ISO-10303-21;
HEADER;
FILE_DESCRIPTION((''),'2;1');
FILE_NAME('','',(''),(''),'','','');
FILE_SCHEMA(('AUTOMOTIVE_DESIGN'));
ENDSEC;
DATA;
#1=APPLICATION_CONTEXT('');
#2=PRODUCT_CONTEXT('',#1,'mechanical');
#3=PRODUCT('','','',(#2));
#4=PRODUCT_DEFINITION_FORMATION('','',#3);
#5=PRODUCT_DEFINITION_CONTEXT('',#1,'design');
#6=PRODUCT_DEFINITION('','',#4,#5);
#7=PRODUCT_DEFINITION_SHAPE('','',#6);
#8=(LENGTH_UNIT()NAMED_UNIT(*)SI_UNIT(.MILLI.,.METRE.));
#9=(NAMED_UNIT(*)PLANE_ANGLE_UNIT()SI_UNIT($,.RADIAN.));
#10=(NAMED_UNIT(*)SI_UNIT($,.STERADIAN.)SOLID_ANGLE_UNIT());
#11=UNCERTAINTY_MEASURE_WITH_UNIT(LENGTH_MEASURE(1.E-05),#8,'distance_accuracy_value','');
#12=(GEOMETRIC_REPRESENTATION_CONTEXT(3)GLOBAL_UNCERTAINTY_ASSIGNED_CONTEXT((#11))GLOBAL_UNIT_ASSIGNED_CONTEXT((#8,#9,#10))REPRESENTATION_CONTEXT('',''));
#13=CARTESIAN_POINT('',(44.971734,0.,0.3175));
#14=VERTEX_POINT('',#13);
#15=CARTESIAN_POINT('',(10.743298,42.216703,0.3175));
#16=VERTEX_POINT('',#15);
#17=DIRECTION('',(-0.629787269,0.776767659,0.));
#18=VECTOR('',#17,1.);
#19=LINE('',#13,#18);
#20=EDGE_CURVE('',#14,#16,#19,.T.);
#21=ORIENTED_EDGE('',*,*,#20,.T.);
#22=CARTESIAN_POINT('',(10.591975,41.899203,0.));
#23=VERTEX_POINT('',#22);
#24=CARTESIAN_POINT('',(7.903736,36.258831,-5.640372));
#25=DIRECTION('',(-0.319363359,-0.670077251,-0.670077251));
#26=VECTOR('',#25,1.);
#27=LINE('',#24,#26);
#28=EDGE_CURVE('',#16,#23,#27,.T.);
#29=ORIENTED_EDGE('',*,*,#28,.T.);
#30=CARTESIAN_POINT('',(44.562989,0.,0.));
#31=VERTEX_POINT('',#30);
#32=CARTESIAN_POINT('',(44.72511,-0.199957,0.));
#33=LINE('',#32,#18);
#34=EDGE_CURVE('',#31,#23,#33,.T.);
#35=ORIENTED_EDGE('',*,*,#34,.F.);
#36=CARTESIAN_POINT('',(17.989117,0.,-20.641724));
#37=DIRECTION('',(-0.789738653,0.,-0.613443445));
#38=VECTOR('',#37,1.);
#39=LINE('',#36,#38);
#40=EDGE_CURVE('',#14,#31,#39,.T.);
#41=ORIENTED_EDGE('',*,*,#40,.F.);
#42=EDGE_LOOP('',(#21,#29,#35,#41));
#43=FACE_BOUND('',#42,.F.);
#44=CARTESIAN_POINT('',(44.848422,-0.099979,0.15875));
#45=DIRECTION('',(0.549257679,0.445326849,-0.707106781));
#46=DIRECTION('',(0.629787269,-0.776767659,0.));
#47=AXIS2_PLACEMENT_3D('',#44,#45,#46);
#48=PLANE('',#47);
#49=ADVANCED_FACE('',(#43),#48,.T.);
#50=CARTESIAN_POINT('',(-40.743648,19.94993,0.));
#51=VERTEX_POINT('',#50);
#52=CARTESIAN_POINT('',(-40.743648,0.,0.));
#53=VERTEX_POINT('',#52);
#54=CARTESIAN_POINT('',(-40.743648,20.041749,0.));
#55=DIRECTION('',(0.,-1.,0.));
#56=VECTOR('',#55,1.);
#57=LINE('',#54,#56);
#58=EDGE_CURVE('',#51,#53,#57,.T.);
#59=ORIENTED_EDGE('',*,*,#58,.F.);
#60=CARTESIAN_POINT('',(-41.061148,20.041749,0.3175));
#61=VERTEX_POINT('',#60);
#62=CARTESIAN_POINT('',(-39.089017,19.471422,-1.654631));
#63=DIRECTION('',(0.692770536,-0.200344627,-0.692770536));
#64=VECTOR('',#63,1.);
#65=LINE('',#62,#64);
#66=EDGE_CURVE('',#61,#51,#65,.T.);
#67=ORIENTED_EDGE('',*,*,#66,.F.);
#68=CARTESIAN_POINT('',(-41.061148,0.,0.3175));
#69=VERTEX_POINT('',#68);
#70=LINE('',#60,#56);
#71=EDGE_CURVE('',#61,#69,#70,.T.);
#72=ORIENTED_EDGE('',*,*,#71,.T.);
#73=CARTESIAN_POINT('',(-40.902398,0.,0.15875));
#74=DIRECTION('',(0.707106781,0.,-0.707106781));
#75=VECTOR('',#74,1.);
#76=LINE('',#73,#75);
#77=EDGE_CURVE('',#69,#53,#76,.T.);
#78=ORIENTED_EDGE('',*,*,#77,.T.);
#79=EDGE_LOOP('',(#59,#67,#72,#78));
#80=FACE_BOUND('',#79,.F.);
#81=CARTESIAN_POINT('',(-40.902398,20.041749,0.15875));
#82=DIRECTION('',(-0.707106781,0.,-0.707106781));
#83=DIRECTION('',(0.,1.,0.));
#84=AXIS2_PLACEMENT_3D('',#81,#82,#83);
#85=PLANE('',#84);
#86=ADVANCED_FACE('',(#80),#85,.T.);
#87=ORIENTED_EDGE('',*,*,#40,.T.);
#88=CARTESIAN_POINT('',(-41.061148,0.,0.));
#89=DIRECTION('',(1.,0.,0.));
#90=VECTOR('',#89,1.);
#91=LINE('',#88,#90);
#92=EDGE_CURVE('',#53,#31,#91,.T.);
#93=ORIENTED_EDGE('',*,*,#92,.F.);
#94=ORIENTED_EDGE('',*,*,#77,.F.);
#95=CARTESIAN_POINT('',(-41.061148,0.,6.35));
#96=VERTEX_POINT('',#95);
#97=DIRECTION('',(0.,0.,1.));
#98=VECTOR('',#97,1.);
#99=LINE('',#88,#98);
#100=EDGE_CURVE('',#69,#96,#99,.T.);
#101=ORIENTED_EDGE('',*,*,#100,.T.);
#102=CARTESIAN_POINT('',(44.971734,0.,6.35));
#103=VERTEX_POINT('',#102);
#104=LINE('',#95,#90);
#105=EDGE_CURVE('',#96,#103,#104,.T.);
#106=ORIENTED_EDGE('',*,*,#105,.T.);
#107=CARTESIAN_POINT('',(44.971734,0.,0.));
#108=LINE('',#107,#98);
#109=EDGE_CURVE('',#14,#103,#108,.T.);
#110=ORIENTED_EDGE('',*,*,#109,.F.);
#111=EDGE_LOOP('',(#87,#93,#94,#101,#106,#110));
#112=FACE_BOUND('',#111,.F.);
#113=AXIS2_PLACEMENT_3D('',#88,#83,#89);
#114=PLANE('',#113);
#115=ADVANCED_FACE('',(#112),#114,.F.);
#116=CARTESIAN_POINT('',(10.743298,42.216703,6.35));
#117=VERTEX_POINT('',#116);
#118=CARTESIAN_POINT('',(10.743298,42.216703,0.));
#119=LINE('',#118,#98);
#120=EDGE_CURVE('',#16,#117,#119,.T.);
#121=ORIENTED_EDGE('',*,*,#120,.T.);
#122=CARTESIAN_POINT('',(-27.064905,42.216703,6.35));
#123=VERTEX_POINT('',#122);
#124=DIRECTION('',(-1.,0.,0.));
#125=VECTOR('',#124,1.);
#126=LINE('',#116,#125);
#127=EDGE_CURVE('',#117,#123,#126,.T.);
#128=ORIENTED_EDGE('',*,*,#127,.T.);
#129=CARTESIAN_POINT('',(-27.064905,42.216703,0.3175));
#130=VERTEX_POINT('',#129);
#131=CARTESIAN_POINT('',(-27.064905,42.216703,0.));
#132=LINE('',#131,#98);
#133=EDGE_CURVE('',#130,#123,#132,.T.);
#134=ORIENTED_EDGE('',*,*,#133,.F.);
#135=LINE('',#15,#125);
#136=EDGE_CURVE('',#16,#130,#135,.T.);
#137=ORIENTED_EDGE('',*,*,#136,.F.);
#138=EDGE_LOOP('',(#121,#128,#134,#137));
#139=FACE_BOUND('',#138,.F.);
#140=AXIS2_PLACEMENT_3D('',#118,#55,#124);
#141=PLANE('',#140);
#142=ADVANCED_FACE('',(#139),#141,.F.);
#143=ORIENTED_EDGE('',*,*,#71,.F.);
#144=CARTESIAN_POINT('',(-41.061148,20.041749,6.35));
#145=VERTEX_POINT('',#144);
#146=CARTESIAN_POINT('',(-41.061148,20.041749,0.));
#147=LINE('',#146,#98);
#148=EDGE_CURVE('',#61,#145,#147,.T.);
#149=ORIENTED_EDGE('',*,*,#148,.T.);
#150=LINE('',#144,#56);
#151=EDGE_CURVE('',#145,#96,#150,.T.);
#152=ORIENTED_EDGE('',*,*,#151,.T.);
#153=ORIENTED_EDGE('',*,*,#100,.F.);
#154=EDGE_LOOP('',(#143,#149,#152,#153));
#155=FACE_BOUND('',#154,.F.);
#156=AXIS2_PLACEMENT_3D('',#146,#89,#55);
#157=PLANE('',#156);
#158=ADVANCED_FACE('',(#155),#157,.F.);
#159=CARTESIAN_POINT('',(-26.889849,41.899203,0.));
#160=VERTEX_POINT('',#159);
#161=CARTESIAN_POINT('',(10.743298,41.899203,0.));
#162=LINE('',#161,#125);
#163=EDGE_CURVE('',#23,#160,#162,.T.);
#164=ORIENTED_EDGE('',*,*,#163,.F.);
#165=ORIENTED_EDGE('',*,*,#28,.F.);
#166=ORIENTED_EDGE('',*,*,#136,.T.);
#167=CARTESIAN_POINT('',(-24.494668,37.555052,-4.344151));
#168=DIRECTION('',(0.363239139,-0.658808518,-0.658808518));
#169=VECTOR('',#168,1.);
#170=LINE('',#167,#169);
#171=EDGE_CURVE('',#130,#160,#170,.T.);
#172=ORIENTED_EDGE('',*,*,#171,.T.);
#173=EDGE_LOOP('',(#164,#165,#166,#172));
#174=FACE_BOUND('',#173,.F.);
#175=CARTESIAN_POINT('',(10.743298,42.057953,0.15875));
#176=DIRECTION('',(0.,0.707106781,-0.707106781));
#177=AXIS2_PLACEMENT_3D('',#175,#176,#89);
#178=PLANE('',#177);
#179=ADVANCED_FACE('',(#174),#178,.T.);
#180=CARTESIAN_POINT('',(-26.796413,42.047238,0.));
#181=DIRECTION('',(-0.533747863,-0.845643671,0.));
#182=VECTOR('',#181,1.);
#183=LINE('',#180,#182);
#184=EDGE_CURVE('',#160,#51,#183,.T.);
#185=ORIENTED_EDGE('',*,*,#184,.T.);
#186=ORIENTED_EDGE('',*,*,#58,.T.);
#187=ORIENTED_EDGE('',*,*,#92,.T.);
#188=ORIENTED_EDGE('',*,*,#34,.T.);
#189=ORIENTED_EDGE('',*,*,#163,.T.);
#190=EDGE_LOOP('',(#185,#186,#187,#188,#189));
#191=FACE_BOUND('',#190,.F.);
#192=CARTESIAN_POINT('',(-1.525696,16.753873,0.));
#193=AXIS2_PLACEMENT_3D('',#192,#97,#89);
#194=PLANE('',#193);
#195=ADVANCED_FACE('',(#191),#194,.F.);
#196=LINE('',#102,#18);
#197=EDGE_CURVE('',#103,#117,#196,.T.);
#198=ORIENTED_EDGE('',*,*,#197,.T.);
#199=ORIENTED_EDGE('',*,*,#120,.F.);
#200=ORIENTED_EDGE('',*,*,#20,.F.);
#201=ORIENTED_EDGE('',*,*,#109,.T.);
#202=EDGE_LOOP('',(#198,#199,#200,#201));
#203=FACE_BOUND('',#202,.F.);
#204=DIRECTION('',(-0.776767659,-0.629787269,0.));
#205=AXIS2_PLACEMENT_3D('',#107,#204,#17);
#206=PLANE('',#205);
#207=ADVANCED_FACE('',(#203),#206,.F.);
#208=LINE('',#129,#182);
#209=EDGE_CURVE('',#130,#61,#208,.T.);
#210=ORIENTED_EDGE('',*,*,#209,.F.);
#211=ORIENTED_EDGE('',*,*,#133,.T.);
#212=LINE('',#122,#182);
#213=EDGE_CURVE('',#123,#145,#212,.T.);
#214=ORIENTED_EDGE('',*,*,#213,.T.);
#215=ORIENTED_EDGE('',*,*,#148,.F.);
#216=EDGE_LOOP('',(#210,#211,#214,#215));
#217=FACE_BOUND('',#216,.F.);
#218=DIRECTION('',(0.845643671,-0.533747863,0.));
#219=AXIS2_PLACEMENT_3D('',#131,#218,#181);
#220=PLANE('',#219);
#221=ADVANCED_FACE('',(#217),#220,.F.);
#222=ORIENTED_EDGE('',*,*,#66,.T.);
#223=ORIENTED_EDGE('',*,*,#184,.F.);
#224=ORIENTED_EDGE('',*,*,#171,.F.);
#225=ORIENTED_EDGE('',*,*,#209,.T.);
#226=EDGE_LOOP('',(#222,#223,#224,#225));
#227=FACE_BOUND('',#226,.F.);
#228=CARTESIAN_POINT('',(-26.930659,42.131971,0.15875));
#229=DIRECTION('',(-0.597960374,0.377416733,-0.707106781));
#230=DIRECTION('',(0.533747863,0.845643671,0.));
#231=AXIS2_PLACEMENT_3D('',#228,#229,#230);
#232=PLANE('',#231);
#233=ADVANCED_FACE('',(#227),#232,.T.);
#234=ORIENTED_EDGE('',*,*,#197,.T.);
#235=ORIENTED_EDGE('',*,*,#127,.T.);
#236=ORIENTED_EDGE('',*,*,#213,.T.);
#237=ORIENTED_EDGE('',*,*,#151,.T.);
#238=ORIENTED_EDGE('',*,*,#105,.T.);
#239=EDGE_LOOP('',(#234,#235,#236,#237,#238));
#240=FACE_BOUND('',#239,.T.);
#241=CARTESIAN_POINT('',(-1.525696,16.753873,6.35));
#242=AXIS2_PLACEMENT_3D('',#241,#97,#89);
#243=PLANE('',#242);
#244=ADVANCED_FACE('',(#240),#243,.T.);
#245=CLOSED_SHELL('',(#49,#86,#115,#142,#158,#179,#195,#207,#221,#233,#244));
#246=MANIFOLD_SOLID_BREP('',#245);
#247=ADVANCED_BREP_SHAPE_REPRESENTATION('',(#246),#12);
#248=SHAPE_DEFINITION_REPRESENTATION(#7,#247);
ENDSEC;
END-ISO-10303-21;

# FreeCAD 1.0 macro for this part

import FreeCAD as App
import Part
import Sketcher
from FreeCAD import Vector
Q = App.Units.Quantity


def edges_at(feature, points):
    """Names of the edges that pass closest to the given points."""
    edges = feature.Shape.Edges
    near = lambda p: min(range(len(edges)), key=lambda i: edges[i].distToShape(Part.Vertex(*p))[0])
    return sorted({f"Edge{near(p) + 1}" for p in points})


def add_polygon(sketch, points):
    """Adds a closed chain of lines whose ends are joined by coincident constraints."""
    first, n = sketch.GeometryCount, len(points)
    for a, b in zip(points, points[1:] + points[:1]):
        sketch.addGeometry(Part.LineSegment(App.Vector(*a, 0), App.Vector(*b, 0)), False)
    for i in range(n):
        sketch.addConstraint(Sketcher.Constraint("Coincident", first + i, 2, first + (i + 1) % n, 1))

doc = App.newDocument("Part")
body = doc.addObject("PartDesign::Body", "Body")

# Sketch on XY plane
sketch1 = body.newObject("Sketcher::SketchObject", "Sketch")
sketch1.AttachmentSupport = (doc.getObject("XY_Plane"), [""])
sketch1.MapMode = "FlatFace"
add_polygon(sketch1, [(-41.061148, 20.041749), (-41.061148, 0), (44.971734, 0), (10.743298, 42.216703), (-27.064905, 42.216703)])  # lines 0-4
sketch1.addConstraint([
    Sketcher.Constraint("Vertical", 0),
    Sketcher.Constraint("Horizontal", 1),
    Sketcher.Constraint("Horizontal", 3),
    Sketcher.Constraint("PointOnObject", 0, 2, -1),
    Sketcher.Constraint("DistanceX", 1, 1, 1, 2, 86.032882),
    Sketcher.Constraint("DistanceY", 0, 2, 0, 1, 20.041749),
    Sketcher.Constraint("DistanceX", 3, 2, 3, 1, 37.808203),
    Sketcher.Constraint("DistanceX", 0, 2, -1, 1, 41.061148),
    Sketcher.Constraint("DistanceX", 3, 2, 1, 2, 72.036639),
    Sketcher.Constraint("Distance", 2, 54.349203),
])
pad1 = body.newObject("PartDesign::Pad", "Pad")
pad1.Profile = sketch1
pad1.Length = Q("0.25 in")
doc.recompute()

chamfer = body.newObject("PartDesign::Chamfer", "Chamfer")
chamfer.Base = (pad1, edges_at(pad1, [
    (27.858, 21.108, 0),
    (-8.161, 42.217, 0),
    (-34.063, 31.129, 0),
    (-41.061, 10.021, 0),
]))
chamfer.Size = Q("0.0125 in")

doc.recompute()
